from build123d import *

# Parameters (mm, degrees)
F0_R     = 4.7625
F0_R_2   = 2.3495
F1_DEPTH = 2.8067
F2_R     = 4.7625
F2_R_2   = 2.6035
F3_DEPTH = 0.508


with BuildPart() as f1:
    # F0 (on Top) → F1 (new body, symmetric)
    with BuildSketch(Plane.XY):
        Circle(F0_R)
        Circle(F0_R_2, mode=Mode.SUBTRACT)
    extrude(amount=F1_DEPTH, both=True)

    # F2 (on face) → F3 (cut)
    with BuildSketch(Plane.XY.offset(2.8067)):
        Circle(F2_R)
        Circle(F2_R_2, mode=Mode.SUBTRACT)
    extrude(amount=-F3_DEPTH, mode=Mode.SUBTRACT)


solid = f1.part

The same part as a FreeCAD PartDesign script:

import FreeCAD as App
import Part
import Sketcher
Q = App.Units.Quantity

doc = App.newDocument("Part")
body = doc.addObject("PartDesign::Body", "Body")

sketch1 = body.newObject("Sketcher::SketchObject", "Sketch")
sketch1.AttachmentSupport = (doc.getObject("XY_Plane"), [""])
sketch1.MapMode = "FlatFace"
sketch1.addGeometry(Part.Circle(App.Vector(0, 0, 0), App.Vector(0, 0, 1), 4.8), False)
sketch1.addGeometry(Part.Circle(App.Vector(0, 0, 0), App.Vector(0, 0, 1), 2.3), False)
sketch1.addConstraint(Sketcher.Constraint("Coincident", 0, 3, -1, 1))
sketch1.addConstraint(Sketcher.Constraint("Coincident", 1, 3, -1, 1))
sketch1.addConstraint(Sketcher.Constraint("Diameter", 0, Q("0.375 in")))
sketch1.addConstraint(Sketcher.Constraint("Diameter", 1, Q("0.185 in")))
pad1 = body.newObject("PartDesign::Pad", "Pad")
pad1.Profile = sketch1
pad1.Length = Q("0.221 in")
pad1.Midplane = True

sketch2 = body.newObject("Sketcher::SketchObject", "Sketch001")
sketch2.AttachmentSupport = (doc.getObject("XY_Plane"), [""])
sketch2.MapMode = "FlatFace"
sketch2.AttachmentOffset = App.Placement(App.Vector(0, 0, 0.1105 * 25.4), App.Rotation())
sketch2.addGeometry(Part.Circle(App.Vector(0, 0, 0), App.Vector(0, 0, 1), 4.8), False)
sketch2.addGeometry(Part.Circle(App.Vector(0, 0, 0), App.Vector(0, 0, 1), 2.6), False)
sketch2.addConstraint(Sketcher.Constraint("Coincident", 0, 3, -1, 1))
sketch2.addConstraint(Sketcher.Constraint("Coincident", 1, 3, -1, 1))
sketch2.addConstraint(Sketcher.Constraint("Diameter", 0, Q("0.375 in")))
sketch2.addConstraint(Sketcher.Constraint("Diameter", 1, Q("0.205 in")))
pocket1 = body.newObject("PartDesign::Pocket", "Pocket")
pocket1.Profile = sketch2
pocket1.Length = Q("0.02 in")

doc.recompute()
